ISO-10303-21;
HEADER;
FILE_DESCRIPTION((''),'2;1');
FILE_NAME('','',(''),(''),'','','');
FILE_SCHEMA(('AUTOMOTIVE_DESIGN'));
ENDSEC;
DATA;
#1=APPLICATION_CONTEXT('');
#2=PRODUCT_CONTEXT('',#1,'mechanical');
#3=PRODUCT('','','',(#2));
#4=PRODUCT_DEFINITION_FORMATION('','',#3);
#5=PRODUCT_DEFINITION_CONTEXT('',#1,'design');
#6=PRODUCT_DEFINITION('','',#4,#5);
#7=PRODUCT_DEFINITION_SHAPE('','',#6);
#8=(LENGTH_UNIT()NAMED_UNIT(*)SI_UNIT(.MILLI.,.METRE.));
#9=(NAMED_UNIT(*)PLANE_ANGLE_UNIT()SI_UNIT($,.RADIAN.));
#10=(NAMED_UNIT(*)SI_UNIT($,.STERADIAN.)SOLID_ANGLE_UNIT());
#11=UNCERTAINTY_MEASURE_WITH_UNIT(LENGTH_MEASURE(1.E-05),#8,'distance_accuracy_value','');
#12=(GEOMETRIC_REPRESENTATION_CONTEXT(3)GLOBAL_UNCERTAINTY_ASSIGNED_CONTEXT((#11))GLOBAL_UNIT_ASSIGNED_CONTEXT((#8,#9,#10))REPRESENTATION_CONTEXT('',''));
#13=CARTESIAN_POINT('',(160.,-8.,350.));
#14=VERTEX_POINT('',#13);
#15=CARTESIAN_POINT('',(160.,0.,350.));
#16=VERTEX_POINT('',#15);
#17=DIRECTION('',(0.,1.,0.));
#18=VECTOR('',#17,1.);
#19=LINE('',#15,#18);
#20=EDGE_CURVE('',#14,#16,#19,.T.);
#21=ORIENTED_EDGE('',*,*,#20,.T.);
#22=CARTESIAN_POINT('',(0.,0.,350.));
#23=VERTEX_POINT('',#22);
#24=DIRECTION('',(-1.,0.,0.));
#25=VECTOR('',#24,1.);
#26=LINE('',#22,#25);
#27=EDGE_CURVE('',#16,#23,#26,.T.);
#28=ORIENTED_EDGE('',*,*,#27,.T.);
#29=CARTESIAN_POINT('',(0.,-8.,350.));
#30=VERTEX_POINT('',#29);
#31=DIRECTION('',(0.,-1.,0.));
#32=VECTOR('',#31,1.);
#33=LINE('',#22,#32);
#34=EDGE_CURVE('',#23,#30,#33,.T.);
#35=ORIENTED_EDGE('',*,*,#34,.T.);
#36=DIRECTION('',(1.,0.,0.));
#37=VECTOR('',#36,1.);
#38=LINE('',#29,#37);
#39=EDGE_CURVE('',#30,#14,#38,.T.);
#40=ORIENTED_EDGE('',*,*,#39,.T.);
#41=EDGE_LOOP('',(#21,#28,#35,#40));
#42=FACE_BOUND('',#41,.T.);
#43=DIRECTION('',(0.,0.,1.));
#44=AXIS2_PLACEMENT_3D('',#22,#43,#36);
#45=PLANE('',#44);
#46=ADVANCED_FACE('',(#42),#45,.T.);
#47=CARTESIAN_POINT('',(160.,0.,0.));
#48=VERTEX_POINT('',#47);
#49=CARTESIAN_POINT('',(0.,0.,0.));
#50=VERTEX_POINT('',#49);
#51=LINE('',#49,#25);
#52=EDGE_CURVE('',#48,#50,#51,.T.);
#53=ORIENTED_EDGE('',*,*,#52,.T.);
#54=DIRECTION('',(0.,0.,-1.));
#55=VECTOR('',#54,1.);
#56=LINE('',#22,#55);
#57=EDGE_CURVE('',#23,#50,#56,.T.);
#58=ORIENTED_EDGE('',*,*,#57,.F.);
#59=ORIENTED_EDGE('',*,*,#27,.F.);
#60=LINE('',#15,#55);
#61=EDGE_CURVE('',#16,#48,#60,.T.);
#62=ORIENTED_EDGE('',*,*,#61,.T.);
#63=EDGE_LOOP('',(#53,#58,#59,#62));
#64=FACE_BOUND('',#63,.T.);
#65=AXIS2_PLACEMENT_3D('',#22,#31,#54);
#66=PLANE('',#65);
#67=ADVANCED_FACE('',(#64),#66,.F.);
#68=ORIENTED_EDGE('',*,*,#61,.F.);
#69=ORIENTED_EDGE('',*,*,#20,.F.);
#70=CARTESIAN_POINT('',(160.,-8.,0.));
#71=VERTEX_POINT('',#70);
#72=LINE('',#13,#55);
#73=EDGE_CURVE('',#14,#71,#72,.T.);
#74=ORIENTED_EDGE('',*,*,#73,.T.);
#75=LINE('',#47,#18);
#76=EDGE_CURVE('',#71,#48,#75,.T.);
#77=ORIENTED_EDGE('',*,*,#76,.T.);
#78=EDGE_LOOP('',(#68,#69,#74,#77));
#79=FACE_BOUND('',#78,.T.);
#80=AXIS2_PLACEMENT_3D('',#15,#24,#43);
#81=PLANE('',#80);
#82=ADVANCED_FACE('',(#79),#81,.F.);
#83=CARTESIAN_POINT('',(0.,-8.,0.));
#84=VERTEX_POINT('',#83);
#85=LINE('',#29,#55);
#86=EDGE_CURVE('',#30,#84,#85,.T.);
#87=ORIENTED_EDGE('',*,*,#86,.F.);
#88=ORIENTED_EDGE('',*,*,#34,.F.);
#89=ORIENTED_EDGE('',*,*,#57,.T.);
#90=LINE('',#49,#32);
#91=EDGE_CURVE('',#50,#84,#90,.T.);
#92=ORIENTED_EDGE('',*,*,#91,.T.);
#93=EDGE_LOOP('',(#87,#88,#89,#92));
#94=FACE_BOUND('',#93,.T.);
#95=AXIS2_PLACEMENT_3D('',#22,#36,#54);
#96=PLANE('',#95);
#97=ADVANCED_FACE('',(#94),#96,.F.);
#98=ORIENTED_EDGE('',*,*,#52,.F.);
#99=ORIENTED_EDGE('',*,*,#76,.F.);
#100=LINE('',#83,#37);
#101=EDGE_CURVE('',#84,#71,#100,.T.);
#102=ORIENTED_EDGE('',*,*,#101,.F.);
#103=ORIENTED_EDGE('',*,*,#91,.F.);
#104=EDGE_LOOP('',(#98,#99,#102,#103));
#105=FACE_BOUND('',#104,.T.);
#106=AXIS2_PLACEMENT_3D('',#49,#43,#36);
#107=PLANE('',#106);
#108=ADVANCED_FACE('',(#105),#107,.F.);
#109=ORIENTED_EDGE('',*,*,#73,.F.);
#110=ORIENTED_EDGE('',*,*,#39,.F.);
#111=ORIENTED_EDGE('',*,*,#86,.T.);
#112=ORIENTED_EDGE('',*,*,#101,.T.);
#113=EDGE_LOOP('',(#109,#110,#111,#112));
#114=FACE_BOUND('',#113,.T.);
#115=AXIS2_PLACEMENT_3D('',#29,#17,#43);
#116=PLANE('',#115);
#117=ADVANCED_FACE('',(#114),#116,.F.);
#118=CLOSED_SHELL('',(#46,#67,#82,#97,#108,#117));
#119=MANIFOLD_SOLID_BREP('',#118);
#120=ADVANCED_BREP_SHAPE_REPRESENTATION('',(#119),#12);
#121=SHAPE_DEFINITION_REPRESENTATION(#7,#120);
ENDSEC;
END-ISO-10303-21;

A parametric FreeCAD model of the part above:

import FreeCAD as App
import Part
import Sketcher

V = App.Vector
Q = App.Units.Quantity

doc = App.newDocument("Part")
body = doc.addObject("PartDesign::Body", "Body")

sketch1 = body.newObject("Sketcher::SketchObject", "Sketch")
sketch1.AttachmentSupport = (doc.getObject("XY_Plane"), [""])
sketch1.MapMode = "FlatFace"
sketch1.addGeometry(Part.LineSegment(V(0, 0, 0), V(0, -8, 0)), False)
sketch1.addGeometry(Part.LineSegment(V(0, -8, 0), V(160, -8, 0)), False)
sketch1.addGeometry(Part.LineSegment(V(160, -8, 0), V(160, 0, 0)), False)
sketch1.addGeometry(Part.LineSegment(V(160, 0, 0), V(0, 0, 0)), False)
sketch1.addConstraint(Sketcher.Constraint("Coincident", 0, 2, 1, 1))
sketch1.addConstraint(Sketcher.Constraint("Coincident", 1, 2, 2, 1))
sketch1.addConstraint(Sketcher.Constraint("Coincident", 2, 2, 3, 1))
sketch1.addConstraint(Sketcher.Constraint("Coincident", 3, 2, 0, 1))
sketch1.addConstraint(Sketcher.Constraint("Vertical", 0))
sketch1.addConstraint(Sketcher.Constraint("Horizontal", 1))
sketch1.addConstraint(Sketcher.Constraint("Vertical", 2))
sketch1.addConstraint(Sketcher.Constraint("Horizontal", 3))
sketch1.addConstraint(Sketcher.Constraint("Coincident", 3, 2, -1, 1))
sketch1.addConstraint(Sketcher.Constraint("DistanceX", 1, 1, 1, 2, Q("160 mm")))
sketch1.addConstraint(Sketcher.Constraint("DistanceY", 0, 2, 0, 1, Q("8 mm")))
pad1 = body.newObject("PartDesign::Pad", "Pad")
pad1.Profile = sketch1
pad1.Length = 350

doc.recompute()
